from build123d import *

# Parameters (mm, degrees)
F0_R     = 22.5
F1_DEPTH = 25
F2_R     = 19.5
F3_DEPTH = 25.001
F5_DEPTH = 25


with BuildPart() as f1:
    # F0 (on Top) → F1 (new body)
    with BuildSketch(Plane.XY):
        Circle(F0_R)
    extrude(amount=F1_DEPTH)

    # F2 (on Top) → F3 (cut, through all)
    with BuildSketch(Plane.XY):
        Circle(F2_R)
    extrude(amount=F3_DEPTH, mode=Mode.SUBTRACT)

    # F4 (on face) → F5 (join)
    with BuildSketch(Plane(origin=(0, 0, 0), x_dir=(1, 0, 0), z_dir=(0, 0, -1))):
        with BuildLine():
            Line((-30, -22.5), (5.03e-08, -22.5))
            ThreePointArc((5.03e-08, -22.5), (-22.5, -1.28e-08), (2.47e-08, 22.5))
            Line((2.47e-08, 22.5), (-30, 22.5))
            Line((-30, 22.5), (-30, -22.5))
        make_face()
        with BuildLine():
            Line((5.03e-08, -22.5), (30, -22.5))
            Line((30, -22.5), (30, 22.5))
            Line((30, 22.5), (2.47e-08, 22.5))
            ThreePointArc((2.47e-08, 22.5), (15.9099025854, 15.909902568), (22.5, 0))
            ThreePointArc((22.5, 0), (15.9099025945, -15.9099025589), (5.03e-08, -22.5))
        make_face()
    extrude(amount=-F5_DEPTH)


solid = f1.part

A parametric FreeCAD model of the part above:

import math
import FreeCAD as App
import Part
import Sketcher

V = App.Vector
Q = App.Units.Quantity

doc = App.newDocument("Part")
body = doc.addObject("PartDesign::Body", "Body")

sketch1 = body.newObject("Sketcher::SketchObject", "Sketch")
sketch1.AttachmentSupport = (doc.getObject("XY_Plane"), [""])
sketch1.MapMode = "FlatFace"
sketch1.addGeometry(Part.Circle(V(0, 0, 0), V(0, 0, 1), 22.5), False)
sketch1.addConstraint(Sketcher.Constraint("Coincident", 0, 3, -1, 1))
sketch1.addConstraint(Sketcher.Constraint("Diameter", 0, Q("45 mm")))
pad1 = body.newObject("PartDesign::Pad", "Pad")
pad1.Profile = sketch1
pad1.Length = 25

sketch2 = body.newObject("Sketcher::SketchObject", "Sketch001")
sketch2.AttachmentSupport = (doc.getObject("XY_Plane"), [""])
sketch2.MapMode = "FlatFace"
sketch2.addGeometry(Part.Circle(V(0, 0, 0), V(0, 0, 1), 19.5), False)
sketch2.addConstraint(Sketcher.Constraint("Coincident", 0, 3, -1, 1))
sketch2.addConstraint(Sketcher.Constraint("Diameter", 0, Q("39 mm")))
pocket1 = body.newObject("PartDesign::Pocket", "Pocket")
pocket1.Profile = sketch2
pocket1.Type = "ThroughAll"
pocket1.Reversed = True

sketch3 = body.newObject("Sketcher::SketchObject", "Sketch002")
sketch3.AttachmentSupport = (doc.getObject("XY_Plane"), [""])
sketch3.MapMode = "FlatFace"
sketch3.addGeometry(Part.LineSegment(V(-30, 22.5, 0), V(0, 22.5, 0)), False)
sketch3.addGeometry(Part.ArcOfCircle(Part.Circle(V(0, 0, 0), V(0, 0, 1), 22.5), math.radians(90), math.radians(270)), False)
sketch3.addGeometry(Part.LineSegment(V(0, -22.5, 0), V(-30, -22.5, 0)), False)
sketch3.addGeometry(Part.LineSegment(V(-30, -22.5, 0), V(-30, 22.5, 0)), False)
sketch3.addGeometry(Part.LineSegment(V(0, 22.5, 0), V(30, 22.5, 0)), False)
sketch3.addGeometry(Part.LineSegment(V(30, 22.5, 0), V(30, -22.5, 0)), False)
sketch3.addGeometry(Part.LineSegment(V(30, -22.5, 0), V(0, -22.5, 0)), False)
sketch3.addGeometry(Part.ArcOfCircle(Part.Circle(V(0, 0, 0), V(0, 0, 1), 22.5), math.radians(-90), math.radians(90)), False)
sketch3.addConstraint(Sketcher.Constraint("Tangent", 0, 2, 1, 1))
sketch3.addConstraint(Sketcher.Constraint("Tangent", 1, 2, 2, 1))
sketch3.addConstraint(Sketcher.Constraint("Coincident", 2, 2, 3, 1))
sketch3.addConstraint(Sketcher.Constraint("Coincident", 3, 2, 0, 1))
sketch3.addConstraint(Sketcher.Constraint("Coincident", 4, 2, 5, 1))
sketch3.addConstraint(Sketcher.Constraint("Coincident", 5, 2, 6, 1))
sketch3.addConstraint(Sketcher.Constraint("Tangent", 6, 2, 7, 1))
sketch3.addConstraint(Sketcher.Constraint("Tangent", 7, 2, 4, 1))
sketch3.addConstraint(Sketcher.Constraint("Horizontal", 0))
sketch3.addConstraint(Sketcher.Constraint("Horizontal", 2))
sketch3.addConstraint(Sketcher.Constraint("Vertical", 3))
sketch3.addConstraint(Sketcher.Constraint("Horizontal", 4))
sketch3.addConstraint(Sketcher.Constraint("Vertical", 5))
sketch3.addConstraint(Sketcher.Constraint("Horizontal", 6))
sketch3.addConstraint(Sketcher.Constraint("Coincident", 1, 3, -1, 1))
sketch3.addConstraint(Sketcher.Constraint("Coincident", 7, 3, -1, 1))
sketch3.addConstraint(Sketcher.Constraint("Equal", 1, 7))
sketch3.addConstraint(Sketcher.Constraint("Equal", 2, 4))
sketch3.addConstraint(Sketcher.Constraint("Radius", 1, Q("22.5 mm")))
sketch3.addConstraint(Sketcher.Constraint("DistanceX", 0, 1, 0, 2, Q("30 mm")))
pad2 = body.newObject("PartDesign::Pad", "Pad001")
pad2.Profile = sketch3
pad2.Length = 25

doc.recompute()
